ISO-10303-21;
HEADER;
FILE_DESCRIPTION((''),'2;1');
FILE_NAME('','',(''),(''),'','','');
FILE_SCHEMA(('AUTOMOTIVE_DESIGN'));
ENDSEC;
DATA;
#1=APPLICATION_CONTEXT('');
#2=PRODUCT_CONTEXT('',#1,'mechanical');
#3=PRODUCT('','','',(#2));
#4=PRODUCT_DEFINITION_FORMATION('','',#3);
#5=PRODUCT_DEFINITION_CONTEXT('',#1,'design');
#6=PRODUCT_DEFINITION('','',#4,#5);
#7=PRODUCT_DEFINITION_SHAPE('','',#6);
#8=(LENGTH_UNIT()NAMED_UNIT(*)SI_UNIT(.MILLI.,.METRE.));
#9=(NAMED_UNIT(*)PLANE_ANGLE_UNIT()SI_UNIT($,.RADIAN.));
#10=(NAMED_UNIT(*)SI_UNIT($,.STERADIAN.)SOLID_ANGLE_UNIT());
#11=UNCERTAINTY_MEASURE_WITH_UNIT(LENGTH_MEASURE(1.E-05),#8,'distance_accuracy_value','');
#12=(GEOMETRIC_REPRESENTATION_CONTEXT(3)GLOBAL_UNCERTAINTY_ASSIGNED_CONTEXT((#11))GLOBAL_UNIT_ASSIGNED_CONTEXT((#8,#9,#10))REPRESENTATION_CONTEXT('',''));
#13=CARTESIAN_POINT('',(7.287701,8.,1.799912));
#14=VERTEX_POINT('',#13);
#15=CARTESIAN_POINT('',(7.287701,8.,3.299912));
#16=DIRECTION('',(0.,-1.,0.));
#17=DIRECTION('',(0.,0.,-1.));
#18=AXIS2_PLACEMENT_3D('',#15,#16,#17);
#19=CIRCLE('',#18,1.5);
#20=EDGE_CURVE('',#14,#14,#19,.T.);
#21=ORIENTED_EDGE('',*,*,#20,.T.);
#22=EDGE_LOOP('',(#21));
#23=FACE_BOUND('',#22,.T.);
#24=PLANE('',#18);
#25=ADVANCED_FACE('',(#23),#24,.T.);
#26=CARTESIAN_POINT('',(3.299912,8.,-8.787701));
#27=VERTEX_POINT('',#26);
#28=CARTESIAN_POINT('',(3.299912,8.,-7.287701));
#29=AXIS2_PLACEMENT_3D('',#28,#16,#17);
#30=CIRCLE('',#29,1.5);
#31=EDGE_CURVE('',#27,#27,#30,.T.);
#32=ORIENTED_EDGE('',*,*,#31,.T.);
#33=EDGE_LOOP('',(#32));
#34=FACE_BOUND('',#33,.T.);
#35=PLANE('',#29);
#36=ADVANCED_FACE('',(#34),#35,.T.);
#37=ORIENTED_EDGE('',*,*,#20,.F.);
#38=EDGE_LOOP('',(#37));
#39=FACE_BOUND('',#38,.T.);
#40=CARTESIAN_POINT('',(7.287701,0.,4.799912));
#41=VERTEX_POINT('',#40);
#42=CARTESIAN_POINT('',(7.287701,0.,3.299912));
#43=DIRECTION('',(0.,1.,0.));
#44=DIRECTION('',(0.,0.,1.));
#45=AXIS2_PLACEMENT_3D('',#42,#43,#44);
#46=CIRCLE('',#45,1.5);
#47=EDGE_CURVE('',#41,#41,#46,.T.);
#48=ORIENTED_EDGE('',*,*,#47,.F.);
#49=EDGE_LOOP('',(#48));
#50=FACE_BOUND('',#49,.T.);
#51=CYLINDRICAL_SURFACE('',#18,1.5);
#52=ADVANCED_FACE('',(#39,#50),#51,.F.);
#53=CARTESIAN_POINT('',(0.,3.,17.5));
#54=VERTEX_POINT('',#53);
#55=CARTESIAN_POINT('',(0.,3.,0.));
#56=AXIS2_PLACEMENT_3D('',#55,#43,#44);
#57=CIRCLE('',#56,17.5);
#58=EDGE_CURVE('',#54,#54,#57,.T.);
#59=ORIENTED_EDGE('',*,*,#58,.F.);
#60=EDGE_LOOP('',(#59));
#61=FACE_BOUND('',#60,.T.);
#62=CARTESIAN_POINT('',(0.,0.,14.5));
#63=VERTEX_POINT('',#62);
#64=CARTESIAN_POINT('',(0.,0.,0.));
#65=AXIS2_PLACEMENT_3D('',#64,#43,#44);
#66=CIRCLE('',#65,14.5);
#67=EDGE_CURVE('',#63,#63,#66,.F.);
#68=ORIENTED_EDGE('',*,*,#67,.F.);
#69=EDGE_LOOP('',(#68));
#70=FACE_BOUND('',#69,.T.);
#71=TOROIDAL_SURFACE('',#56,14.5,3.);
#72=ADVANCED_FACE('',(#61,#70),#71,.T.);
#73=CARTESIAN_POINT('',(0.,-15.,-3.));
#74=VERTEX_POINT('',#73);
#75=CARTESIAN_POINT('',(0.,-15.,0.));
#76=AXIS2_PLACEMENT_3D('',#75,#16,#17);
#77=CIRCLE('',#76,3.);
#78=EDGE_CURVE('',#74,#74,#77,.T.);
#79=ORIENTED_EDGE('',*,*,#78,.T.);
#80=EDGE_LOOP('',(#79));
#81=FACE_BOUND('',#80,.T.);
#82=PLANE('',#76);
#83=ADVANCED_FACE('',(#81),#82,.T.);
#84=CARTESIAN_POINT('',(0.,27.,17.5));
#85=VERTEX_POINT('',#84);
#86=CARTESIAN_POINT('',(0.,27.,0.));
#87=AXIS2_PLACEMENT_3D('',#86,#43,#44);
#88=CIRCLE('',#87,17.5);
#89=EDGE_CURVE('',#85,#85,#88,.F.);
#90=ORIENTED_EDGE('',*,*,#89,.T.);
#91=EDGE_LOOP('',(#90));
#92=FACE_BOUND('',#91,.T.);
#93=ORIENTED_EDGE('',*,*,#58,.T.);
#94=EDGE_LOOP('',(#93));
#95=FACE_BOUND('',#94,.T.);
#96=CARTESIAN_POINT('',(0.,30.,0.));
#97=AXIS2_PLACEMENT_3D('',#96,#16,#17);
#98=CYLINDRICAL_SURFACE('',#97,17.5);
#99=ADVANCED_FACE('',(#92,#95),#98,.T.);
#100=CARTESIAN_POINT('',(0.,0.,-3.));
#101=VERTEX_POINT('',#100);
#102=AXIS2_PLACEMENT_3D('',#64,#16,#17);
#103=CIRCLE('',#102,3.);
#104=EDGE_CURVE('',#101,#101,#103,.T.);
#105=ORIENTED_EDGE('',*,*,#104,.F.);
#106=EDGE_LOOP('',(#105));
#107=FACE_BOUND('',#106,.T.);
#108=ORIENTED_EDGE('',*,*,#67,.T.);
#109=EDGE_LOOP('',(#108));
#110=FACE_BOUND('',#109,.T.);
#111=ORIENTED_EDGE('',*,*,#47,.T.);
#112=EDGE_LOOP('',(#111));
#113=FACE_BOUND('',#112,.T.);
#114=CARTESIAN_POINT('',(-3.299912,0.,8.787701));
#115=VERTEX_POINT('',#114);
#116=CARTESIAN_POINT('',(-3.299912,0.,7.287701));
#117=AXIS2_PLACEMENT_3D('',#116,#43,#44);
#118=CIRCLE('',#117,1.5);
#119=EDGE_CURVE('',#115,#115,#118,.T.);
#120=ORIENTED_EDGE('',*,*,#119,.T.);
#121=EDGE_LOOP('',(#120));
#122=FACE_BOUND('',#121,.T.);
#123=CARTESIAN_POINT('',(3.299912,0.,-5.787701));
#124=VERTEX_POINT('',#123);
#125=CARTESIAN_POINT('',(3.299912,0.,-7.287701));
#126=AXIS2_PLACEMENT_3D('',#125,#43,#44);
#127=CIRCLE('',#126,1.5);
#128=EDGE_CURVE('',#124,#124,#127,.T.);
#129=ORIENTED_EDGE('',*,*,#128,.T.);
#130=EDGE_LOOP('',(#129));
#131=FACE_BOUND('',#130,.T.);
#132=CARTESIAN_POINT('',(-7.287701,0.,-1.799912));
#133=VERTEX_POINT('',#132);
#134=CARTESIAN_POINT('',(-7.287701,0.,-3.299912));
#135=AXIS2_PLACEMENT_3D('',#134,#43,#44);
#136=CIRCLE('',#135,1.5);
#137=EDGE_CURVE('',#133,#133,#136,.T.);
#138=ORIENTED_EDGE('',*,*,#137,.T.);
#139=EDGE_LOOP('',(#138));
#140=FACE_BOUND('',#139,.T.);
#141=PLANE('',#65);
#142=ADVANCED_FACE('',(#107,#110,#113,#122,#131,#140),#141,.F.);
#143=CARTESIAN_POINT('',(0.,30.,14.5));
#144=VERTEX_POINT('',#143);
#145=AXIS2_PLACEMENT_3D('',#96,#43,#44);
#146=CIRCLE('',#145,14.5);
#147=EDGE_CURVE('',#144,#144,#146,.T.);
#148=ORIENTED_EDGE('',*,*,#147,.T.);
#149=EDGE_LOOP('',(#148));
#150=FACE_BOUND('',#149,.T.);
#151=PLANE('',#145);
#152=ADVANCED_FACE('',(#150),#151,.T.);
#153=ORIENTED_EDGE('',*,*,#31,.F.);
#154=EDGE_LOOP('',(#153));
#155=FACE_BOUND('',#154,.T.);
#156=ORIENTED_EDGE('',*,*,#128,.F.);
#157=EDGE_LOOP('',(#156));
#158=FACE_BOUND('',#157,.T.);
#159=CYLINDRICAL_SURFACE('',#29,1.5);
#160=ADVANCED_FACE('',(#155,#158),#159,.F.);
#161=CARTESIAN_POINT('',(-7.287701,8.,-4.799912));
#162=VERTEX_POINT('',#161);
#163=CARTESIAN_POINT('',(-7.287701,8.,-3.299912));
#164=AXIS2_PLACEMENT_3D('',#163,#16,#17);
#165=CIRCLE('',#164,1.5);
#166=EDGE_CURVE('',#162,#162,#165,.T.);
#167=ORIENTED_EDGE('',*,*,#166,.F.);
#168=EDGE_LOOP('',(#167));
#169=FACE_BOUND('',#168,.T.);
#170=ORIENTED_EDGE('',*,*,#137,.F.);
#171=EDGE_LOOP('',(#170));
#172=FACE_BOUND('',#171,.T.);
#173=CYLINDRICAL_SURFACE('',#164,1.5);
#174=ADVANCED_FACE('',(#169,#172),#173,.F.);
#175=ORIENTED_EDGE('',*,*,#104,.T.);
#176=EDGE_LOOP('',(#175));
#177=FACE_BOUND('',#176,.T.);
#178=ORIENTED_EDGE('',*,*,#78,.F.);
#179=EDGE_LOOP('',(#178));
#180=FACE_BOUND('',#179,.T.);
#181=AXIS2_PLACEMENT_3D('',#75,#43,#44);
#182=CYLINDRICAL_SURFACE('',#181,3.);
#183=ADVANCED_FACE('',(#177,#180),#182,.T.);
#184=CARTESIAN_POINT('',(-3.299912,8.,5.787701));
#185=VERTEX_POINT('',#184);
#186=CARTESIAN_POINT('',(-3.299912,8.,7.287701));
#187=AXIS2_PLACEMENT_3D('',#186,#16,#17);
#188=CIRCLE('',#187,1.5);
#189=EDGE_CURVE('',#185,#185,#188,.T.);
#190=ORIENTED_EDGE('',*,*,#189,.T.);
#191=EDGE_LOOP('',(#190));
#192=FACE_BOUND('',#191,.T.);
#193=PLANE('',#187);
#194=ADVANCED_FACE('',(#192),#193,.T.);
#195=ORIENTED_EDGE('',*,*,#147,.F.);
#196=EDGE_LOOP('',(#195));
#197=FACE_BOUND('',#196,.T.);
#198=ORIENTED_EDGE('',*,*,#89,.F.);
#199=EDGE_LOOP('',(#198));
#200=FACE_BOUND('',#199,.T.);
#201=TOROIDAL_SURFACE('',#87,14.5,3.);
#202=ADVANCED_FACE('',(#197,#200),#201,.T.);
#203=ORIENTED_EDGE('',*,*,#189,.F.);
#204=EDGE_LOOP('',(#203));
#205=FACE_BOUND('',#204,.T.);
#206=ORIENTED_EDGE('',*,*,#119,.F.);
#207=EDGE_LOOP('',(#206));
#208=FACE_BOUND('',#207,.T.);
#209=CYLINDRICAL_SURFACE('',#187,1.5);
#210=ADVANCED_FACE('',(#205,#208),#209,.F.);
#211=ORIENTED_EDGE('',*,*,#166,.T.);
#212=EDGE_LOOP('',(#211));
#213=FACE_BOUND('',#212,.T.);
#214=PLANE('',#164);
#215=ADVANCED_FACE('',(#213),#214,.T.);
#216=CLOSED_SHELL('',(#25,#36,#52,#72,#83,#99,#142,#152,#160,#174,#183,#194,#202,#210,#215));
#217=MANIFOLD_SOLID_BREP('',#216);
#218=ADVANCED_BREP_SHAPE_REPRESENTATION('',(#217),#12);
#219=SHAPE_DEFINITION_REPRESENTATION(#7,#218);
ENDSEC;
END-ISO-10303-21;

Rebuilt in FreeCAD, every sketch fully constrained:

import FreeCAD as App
import Part
import Sketcher
from FreeCAD import Vector
Q = App.Units.Quantity


def edges_at(feature, points):
    """Names of the edges that pass closest to the given points."""
    edges = feature.Shape.Edges
    near = lambda p: min(range(len(edges)), key=lambda i: edges[i].distToShape(Part.Vertex(*p))[0])
    return sorted({f"Edge{near(p) + 1}" for p in points})

doc = App.newDocument("Part")
body = doc.addObject("PartDesign::Body", "Body")

sketch1 = doc.addObject("Sketcher::SketchObject", "Sketch")
body.addObject(sketch1)
sketch1.AttachmentSupport = (doc.XZ_Plane, [""])
sketch1.MapMode = "FlatFace"
sketch1.addGeometry(Part.Circle(Vector(0, 0, 0), Vector(0, 0, 1), 18), False)
sketch1.addConstraint([
    Sketcher.Constraint("Coincident", 0, 3, -1, 1),
    Sketcher.Constraint("Diameter", 0, Q("35 mm")),
])
pad1 = doc.addObject("PartDesign::Pad", "Pad")
body.addObject(pad1)
pad1.Profile = sketch1
pad1.Length = 30
pad1.Reversed = True

sketch2 = doc.addObject("Sketcher::SketchObject", "Sketch001")
body.addObject(sketch2)
sketch2.AttachmentSupport = (doc.XZ_Plane, [""])
sketch2.MapMode = "FlatFace"
sketch2.addGeometry(Part.Circle(Vector(0, 0, 0), Vector(0, 0, 1), 3), False)
sketch2.addConstraint([
    Sketcher.Constraint("Coincident", 0, 3, -1, 1),
    Sketcher.Constraint("Diameter", 0, Q("6 mm")),
])
pad2 = doc.addObject("PartDesign::Pad", "Pad001")
body.addObject(pad2)
pad2.Profile = sketch2
pad2.Length = 15
doc.recompute()

fillet = doc.addObject("PartDesign::Fillet", "Fillet")
body.addObject(fillet)
fillet.Base = (pad2, edges_at(pad2, [(0, 0, -17.5), (0, 30, -17.5)]))
fillet.Radius = 3

sketch3 = doc.addObject("Sketcher::SketchObject", "Sketch002")
body.addObject(sketch3)
sketch3.AttachmentSupport = (doc.XZ_Plane, [""])
sketch3.MapMode = "FlatFace"
sketch3.AttachmentOffset = App.Placement(Vector(0, 0, 2), App.Rotation())
sketch3.addGeometry([
    Part.Circle(Vector(7.3, 3.3, 0), Vector(0, 0, 1), 1.5),
    Part.Circle(Vector(3.3, -7.3, 0), Vector(0, 0, 1), 1.5),
    Part.Circle(Vector(-7.3, -3.3, 0), Vector(0, 0, 1), 1.5),
    Part.Circle(Vector(-3.3, 7.3, 0), Vector(0, 0, 1), 1.5),
], False)
sketch3.addConstraint([
    Sketcher.Constraint("Equal", 0, 1),
    Sketcher.Constraint("Equal", 1, 2),
    Sketcher.Constraint("Equal", 2, 3),
    Sketcher.Constraint("Symmetric", 0, 3, 2, 3, -1, 1),
    Sketcher.Constraint("Symmetric", 1, 3, 3, 3, -1, 1),
    Sketcher.Constraint("Diameter", 0, Q("3 mm")),
    Sketcher.Constraint("DistanceX", -1, 1, 0, 3, Q("7.287701 mm")),
    Sketcher.Constraint("DistanceY", 1, 3, -1, 1, Q("7.287701 mm")),
    Sketcher.Constraint("DistanceY", -1, 1, 0, 3, Q("3.299912 mm")),
    Sketcher.Constraint("DistanceX", -1, 1, 1, 3, Q("3.299912 mm")),
])
pocket1 = doc.addObject("PartDesign::Pocket", "Pocket")
body.addObject(pocket1)
pocket1.Profile = sketch3
pocket1.Length = 10

doc.recompute()
